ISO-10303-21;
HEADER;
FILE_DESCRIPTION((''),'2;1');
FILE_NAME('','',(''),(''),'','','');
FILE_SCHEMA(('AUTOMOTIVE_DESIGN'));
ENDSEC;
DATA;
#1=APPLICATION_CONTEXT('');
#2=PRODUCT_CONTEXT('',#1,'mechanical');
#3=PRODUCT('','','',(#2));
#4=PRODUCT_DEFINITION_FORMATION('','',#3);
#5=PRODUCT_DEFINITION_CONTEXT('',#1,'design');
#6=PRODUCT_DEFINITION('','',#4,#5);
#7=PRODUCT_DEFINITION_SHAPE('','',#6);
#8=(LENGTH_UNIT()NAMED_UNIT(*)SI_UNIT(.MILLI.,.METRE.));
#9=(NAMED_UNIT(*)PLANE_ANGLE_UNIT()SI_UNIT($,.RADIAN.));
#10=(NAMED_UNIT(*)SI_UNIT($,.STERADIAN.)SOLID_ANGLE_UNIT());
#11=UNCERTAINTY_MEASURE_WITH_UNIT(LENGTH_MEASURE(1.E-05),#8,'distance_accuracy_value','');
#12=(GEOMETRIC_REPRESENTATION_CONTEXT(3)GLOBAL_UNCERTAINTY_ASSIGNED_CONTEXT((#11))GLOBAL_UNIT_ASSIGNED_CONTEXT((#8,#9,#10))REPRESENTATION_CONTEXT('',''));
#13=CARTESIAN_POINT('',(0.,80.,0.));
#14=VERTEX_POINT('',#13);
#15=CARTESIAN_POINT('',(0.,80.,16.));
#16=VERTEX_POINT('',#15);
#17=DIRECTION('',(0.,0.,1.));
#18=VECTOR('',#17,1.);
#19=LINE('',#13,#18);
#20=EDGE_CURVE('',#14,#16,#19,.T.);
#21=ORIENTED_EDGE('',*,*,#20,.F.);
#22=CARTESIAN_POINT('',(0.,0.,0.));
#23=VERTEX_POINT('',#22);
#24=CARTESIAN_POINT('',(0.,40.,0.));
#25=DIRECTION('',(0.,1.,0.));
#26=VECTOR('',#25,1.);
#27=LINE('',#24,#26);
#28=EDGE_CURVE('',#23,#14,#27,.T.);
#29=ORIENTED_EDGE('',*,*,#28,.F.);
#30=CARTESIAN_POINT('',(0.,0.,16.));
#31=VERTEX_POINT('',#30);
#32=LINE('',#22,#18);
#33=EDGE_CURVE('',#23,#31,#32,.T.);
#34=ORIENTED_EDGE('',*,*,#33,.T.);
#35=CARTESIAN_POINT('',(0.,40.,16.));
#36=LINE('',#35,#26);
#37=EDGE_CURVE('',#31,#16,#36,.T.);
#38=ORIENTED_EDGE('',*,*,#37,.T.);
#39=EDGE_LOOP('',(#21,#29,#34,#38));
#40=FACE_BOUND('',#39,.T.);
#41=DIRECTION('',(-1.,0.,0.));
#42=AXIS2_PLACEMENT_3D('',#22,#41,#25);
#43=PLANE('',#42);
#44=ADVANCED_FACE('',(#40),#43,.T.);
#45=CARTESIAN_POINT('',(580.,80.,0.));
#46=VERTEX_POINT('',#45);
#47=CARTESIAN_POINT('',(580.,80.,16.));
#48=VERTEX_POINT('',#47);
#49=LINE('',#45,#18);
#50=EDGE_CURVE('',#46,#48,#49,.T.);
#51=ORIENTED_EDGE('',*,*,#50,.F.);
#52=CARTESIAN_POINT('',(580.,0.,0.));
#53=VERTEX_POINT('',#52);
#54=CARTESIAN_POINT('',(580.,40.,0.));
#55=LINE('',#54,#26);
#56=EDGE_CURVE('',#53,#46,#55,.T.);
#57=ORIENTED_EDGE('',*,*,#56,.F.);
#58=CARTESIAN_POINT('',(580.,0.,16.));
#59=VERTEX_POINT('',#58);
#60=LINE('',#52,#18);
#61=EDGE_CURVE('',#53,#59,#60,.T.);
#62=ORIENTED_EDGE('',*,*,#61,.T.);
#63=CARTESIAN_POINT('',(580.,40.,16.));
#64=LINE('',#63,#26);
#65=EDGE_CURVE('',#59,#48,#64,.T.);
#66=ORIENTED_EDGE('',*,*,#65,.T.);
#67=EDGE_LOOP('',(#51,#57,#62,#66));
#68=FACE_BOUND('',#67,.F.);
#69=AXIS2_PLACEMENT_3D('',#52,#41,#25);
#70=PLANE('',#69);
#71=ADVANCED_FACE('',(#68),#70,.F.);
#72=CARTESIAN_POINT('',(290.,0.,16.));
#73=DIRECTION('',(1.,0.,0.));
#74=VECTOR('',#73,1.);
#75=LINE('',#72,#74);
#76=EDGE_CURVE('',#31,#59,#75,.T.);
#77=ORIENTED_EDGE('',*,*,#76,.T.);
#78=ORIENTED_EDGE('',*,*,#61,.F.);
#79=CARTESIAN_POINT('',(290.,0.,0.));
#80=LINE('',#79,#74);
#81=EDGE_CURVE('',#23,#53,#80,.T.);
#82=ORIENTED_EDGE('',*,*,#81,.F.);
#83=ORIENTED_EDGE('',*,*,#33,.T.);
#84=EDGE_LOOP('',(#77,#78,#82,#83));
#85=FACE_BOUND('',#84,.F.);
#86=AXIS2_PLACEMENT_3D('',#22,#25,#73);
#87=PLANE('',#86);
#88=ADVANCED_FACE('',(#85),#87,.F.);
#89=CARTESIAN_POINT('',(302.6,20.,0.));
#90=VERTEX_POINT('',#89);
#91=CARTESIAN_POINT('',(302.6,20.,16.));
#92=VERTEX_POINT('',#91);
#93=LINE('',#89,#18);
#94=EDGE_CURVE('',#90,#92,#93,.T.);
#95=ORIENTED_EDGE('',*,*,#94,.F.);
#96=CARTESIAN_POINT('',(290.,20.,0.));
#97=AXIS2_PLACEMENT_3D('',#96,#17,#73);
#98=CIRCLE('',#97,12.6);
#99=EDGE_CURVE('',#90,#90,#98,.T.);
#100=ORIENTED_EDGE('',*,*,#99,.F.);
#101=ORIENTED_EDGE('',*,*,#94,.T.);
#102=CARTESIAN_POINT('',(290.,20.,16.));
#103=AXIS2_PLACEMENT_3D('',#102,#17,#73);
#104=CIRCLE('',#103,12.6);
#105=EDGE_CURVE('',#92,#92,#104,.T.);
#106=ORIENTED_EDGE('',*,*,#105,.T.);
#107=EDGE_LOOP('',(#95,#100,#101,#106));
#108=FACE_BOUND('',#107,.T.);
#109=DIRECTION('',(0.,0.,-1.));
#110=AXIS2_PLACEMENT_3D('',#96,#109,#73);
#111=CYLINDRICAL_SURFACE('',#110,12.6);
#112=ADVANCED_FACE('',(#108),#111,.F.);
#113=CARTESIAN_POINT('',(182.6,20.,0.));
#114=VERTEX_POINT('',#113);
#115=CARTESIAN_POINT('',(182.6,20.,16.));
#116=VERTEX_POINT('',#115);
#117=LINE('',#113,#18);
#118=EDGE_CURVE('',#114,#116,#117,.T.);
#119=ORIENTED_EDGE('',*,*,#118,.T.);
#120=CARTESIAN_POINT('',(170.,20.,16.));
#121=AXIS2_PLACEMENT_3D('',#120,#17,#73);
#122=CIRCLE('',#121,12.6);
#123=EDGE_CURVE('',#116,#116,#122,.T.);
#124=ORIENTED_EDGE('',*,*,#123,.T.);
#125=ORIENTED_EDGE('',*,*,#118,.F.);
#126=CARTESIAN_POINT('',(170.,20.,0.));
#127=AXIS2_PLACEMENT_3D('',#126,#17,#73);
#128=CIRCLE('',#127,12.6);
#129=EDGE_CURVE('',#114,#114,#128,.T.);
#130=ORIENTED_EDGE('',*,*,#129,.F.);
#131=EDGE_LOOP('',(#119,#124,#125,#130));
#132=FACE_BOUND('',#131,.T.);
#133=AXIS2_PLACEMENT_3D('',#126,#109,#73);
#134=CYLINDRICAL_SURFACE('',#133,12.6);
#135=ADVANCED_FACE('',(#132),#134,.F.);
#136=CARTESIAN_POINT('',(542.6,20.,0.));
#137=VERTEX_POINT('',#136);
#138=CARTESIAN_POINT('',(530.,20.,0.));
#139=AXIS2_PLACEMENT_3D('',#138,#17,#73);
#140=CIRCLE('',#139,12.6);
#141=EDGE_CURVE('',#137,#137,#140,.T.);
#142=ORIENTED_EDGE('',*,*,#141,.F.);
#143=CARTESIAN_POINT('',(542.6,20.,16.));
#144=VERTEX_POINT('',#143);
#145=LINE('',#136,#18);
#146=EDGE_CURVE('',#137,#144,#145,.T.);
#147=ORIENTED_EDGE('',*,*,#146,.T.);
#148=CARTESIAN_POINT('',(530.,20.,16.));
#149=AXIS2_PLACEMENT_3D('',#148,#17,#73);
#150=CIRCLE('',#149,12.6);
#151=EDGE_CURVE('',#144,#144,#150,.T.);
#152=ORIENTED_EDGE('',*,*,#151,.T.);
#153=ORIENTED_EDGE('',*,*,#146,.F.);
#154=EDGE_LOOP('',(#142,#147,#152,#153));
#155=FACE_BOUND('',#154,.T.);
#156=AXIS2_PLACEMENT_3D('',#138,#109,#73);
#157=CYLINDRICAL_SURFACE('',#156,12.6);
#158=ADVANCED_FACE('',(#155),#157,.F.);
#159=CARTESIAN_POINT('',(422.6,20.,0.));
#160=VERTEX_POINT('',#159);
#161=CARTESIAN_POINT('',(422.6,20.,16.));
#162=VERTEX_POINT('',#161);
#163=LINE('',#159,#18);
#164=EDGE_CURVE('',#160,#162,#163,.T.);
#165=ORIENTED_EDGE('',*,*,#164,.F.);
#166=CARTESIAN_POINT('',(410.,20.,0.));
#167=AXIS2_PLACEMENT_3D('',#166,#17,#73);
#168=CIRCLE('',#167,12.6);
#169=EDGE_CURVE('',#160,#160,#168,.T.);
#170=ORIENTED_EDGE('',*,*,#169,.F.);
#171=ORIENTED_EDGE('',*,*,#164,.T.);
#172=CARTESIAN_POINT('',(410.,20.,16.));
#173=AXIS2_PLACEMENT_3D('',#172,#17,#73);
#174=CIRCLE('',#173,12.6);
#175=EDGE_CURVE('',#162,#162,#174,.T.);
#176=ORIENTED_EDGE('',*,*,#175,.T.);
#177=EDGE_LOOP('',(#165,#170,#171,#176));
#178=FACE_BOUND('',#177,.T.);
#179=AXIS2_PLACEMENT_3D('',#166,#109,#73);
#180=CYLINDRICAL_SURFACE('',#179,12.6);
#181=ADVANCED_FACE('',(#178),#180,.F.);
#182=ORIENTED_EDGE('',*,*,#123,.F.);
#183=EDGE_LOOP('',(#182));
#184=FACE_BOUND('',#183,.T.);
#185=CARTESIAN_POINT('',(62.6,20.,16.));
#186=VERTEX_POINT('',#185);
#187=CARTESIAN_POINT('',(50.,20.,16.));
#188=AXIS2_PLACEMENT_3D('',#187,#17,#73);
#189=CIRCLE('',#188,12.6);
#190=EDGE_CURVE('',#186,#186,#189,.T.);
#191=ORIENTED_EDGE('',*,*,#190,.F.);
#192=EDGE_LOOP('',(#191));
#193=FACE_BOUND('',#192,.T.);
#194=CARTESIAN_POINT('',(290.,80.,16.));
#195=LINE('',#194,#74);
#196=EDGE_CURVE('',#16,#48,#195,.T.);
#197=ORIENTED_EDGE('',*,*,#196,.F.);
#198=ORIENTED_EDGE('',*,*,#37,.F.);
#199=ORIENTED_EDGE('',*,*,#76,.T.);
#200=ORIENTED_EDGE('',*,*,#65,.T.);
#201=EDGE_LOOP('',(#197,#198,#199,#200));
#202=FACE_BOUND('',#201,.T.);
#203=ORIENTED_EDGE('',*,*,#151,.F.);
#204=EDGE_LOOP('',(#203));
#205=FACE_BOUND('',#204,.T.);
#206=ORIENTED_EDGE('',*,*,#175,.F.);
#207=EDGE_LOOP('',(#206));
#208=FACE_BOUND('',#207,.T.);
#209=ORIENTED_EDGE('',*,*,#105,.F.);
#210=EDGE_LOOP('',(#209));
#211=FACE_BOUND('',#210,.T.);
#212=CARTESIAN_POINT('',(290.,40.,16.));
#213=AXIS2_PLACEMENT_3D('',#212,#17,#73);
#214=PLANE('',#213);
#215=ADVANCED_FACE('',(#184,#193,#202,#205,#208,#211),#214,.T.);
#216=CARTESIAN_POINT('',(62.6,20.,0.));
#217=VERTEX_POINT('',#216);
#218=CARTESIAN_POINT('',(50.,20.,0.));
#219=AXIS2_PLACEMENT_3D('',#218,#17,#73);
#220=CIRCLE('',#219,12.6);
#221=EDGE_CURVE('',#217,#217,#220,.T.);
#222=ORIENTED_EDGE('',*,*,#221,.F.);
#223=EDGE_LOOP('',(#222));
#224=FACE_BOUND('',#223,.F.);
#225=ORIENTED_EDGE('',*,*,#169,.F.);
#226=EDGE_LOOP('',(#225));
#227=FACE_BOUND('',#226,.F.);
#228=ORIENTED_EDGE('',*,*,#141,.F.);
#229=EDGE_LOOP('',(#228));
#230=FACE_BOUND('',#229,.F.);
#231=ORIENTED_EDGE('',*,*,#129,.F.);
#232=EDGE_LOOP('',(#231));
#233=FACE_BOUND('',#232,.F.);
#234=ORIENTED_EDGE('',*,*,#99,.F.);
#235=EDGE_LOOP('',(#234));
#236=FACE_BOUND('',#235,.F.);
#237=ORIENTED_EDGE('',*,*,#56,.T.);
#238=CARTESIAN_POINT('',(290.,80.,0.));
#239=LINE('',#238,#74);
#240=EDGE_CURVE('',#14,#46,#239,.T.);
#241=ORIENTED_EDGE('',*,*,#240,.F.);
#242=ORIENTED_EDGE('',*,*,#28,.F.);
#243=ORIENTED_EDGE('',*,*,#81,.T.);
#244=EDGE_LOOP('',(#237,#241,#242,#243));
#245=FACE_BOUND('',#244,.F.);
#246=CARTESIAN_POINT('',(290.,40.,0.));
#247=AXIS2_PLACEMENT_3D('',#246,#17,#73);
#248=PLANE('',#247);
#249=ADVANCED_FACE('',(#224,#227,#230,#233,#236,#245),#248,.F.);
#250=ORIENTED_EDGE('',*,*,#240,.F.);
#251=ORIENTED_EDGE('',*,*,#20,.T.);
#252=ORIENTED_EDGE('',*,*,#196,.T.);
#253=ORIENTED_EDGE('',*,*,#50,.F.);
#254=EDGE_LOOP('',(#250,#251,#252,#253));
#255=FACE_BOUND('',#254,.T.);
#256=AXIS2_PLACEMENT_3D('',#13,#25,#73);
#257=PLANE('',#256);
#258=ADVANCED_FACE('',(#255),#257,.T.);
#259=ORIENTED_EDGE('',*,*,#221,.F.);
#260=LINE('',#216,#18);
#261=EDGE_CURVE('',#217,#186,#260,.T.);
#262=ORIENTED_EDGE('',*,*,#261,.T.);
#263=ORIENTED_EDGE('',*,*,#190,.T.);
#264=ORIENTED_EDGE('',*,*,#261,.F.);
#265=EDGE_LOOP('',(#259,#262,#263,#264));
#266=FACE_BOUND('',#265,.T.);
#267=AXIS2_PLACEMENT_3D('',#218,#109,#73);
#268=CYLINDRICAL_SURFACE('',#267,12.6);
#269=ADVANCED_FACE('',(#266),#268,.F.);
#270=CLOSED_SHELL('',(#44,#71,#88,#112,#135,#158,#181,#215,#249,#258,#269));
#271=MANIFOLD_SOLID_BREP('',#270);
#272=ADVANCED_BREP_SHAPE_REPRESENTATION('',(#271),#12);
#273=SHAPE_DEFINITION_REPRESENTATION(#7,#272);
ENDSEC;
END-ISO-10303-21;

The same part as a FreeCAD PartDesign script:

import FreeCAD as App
import Part
import Sketcher

V = App.Vector
Q = App.Units.Quantity

doc = App.newDocument("Part")
body = doc.addObject("PartDesign::Body", "Body")

# Sketch on XY plane
sketch1 = body.newObject("Sketcher::SketchObject", "Sketch")
sketch1.AttachmentSupport = (doc.getObject("XY_Plane"), [""])
sketch1.MapMode = "FlatFace"
sketch1.addGeometry(Part.LineSegment(V(0, 80, 0), V(0, 0, 0)), False)
sketch1.addGeometry(Part.LineSegment(V(0, 0, 0), V(580, 0, 0)), False)
sketch1.addGeometry(Part.LineSegment(V(580, 0, 0), V(580, 80, 0)), False)
sketch1.addGeometry(Part.LineSegment(V(580, 80, 0), V(0, 80, 0)), False)
sketch1.addGeometry(Part.Circle(V(50, 20, 0), V(0, 0, 1), 13), False)
sketch1.addGeometry(Part.Circle(V(170, 20, 0), V(0, 0, 1), 13), False)
sketch1.addGeometry(Part.Circle(V(290, 20, 0), V(0, 0, 1), 13), False)
sketch1.addGeometry(Part.Circle(V(410, 20, 0), V(0, 0, 1), 13), False)
sketch1.addGeometry(Part.Circle(V(530, 20, 0), V(0, 0, 1), 13), False)
sketch1.addConstraint(Sketcher.Constraint("Coincident", 0, 2, 1, 1))
sketch1.addConstraint(Sketcher.Constraint("Coincident", 1, 2, 2, 1))
sketch1.addConstraint(Sketcher.Constraint("Coincident", 2, 2, 3, 1))
sketch1.addConstraint(Sketcher.Constraint("Coincident", 3, 2, 0, 1))
sketch1.addConstraint(Sketcher.Constraint("Vertical", 0))
sketch1.addConstraint(Sketcher.Constraint("Horizontal", 1))
sketch1.addConstraint(Sketcher.Constraint("Vertical", 2))
sketch1.addConstraint(Sketcher.Constraint("Horizontal", 3))
sketch1.addConstraint(Sketcher.Constraint("Coincident", 0, 2, -1, 1))
sketch1.addConstraint(Sketcher.Constraint("Equal", 4, 5))
sketch1.addConstraint(Sketcher.Constraint("Equal", 5, 6))
sketch1.addConstraint(Sketcher.Constraint("Equal", 6, 7))
sketch1.addConstraint(Sketcher.Constraint("Equal", 7, 8))
sketch1.addConstraint(Sketcher.Constraint("Horizontal", 4, 3, 5, 3))
sketch1.addConstraint(Sketcher.Constraint("Horizontal", 5, 3, 6, 3))
sketch1.addConstraint(Sketcher.Constraint("Horizontal", 6, 3, 7, 3))
sketch1.addConstraint(Sketcher.Constraint("Horizontal", 7, 3, 8, 3))
sketch1.addConstraint(Sketcher.Constraint("Diameter", 4, Q("25.2 mm")))
sketch1.addConstraint(Sketcher.Constraint("DistanceX", 1, 1, 1, 2, Q("580 mm")))
sketch1.addConstraint(Sketcher.Constraint("DistanceY", 0, 2, 0, 1, Q("80 mm")))
sketch1.addConstraint(Sketcher.Constraint("DistanceX", -1, 1, 4, 3, Q("50 mm")))
sketch1.addConstraint(Sketcher.Constraint("DistanceY", -1, 1, 4, 3, Q("20 mm")))
sketch1.addConstraint(Sketcher.Constraint("DistanceX", -1, 1, 5, 3, Q("170 mm")))
sketch1.addConstraint(Sketcher.Constraint("DistanceX", -1, 1, 6, 3, Q("290 mm")))
sketch1.addConstraint(Sketcher.Constraint("DistanceX", -1, 1, 7, 3, Q("410 mm")))
sketch1.addConstraint(Sketcher.Constraint("DistanceX", -1, 1, 8, 3, Q("530 mm")))
pad1 = body.newObject("PartDesign::Pad", "Pad")
pad1.Profile = sketch1
pad1.Length = 16

doc.recompute()
